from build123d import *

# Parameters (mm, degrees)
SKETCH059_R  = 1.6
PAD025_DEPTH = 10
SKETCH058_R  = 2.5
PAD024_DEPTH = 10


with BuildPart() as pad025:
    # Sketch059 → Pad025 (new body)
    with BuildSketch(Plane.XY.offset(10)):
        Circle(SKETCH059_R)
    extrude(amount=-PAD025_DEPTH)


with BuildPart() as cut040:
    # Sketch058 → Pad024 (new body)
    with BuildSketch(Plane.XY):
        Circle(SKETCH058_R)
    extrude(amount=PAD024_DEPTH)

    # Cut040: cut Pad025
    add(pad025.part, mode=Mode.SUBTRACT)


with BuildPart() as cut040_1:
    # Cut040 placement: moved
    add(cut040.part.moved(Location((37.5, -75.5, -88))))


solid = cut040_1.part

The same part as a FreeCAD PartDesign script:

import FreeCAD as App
import Part
import Sketcher
Q = App.Units.Quantity

doc = App.newDocument("Part")
params = doc.addObject("Spreadsheet::Sheet", "Params")
for row, (alias, value) in enumerate([
    ("sketch1_diameter", "3.2 mm"),
    ("pad1_length", "10 mm"),
    ("sketch2_diameter", "5 mm"),
    ("pad2_length", "10 mm"),
], start=1):
    params.set(f"A{row}", alias)
    params.set(f"B{row}", "=" + value)
    params.setAlias(f"B{row}", alias)

body = doc.addObject("PartDesign::Body", "Body")

sketch1 = body.newObject("Sketcher::SketchObject", "Sketch")
sketch1.AttachmentSupport = (doc.getObject("XY_Plane"), [""])
sketch1.MapMode = "FlatFace"
sketch1.AttachmentOffset = App.Placement(App.Vector(0, 0, 10), App.Rotation())
sketch1.addGeometry(Part.Circle(App.Vector(0, 0, 0), App.Vector(0, 0, 1), 1.6), False)
sketch1.addConstraint(Sketcher.Constraint("Coincident", 0, 3, -1, 1))
sketch1.addConstraint(Sketcher.Constraint("Diameter", 0, Q("3.2 mm")))
sketch1.setExpression("Constraints[1]", "Params.sketch1_diameter")
pad1 = body.newObject("PartDesign::Pad", "Pad")
pad1.Profile = sketch1
pad1.setExpression("Length", "Params.pad1_length")
pad1.Reversed = True
body2 = doc.addObject("PartDesign::Body", "Body001")

sketch2 = body2.newObject("Sketcher::SketchObject", "Sketch001")
sketch2.AttachmentSupport = (doc.getObject("XY_Plane001"), [""])
sketch2.MapMode = "FlatFace"
sketch2.addGeometry(Part.Circle(App.Vector(0, 0, 0), App.Vector(0, 0, 1), 2.5), False)
sketch2.addConstraint(Sketcher.Constraint("Coincident", 0, 3, -1, 1))
sketch2.addConstraint(Sketcher.Constraint("Diameter", 0, Q("5 mm")))
sketch2.setExpression("Constraints[1]", "Params.sketch2_diameter")
pad2 = body2.newObject("PartDesign::Pad", "Pad001")
pad2.Profile = sketch2
pad2.setExpression("Length", "Params.pad2_length")
doc.recompute()

boolean = body2.newObject("PartDesign::Boolean", "Boolean")
boolean.Type = "Cut"
boolean.addObjects([body])
body3 = doc.addObject("PartDesign::Body", "Body002")
doc.recompute()

body2.Placement = App.Placement(App.Vector(37.5, -75.5, -88), App.Rotation(App.Vector(0, 0, 1), 0))
boolean2 = body3.newObject("PartDesign::Boolean", "Boolean001")
boolean2.Type = "Fuse"
boolean2.addObjects([body2])

doc.recompute()
